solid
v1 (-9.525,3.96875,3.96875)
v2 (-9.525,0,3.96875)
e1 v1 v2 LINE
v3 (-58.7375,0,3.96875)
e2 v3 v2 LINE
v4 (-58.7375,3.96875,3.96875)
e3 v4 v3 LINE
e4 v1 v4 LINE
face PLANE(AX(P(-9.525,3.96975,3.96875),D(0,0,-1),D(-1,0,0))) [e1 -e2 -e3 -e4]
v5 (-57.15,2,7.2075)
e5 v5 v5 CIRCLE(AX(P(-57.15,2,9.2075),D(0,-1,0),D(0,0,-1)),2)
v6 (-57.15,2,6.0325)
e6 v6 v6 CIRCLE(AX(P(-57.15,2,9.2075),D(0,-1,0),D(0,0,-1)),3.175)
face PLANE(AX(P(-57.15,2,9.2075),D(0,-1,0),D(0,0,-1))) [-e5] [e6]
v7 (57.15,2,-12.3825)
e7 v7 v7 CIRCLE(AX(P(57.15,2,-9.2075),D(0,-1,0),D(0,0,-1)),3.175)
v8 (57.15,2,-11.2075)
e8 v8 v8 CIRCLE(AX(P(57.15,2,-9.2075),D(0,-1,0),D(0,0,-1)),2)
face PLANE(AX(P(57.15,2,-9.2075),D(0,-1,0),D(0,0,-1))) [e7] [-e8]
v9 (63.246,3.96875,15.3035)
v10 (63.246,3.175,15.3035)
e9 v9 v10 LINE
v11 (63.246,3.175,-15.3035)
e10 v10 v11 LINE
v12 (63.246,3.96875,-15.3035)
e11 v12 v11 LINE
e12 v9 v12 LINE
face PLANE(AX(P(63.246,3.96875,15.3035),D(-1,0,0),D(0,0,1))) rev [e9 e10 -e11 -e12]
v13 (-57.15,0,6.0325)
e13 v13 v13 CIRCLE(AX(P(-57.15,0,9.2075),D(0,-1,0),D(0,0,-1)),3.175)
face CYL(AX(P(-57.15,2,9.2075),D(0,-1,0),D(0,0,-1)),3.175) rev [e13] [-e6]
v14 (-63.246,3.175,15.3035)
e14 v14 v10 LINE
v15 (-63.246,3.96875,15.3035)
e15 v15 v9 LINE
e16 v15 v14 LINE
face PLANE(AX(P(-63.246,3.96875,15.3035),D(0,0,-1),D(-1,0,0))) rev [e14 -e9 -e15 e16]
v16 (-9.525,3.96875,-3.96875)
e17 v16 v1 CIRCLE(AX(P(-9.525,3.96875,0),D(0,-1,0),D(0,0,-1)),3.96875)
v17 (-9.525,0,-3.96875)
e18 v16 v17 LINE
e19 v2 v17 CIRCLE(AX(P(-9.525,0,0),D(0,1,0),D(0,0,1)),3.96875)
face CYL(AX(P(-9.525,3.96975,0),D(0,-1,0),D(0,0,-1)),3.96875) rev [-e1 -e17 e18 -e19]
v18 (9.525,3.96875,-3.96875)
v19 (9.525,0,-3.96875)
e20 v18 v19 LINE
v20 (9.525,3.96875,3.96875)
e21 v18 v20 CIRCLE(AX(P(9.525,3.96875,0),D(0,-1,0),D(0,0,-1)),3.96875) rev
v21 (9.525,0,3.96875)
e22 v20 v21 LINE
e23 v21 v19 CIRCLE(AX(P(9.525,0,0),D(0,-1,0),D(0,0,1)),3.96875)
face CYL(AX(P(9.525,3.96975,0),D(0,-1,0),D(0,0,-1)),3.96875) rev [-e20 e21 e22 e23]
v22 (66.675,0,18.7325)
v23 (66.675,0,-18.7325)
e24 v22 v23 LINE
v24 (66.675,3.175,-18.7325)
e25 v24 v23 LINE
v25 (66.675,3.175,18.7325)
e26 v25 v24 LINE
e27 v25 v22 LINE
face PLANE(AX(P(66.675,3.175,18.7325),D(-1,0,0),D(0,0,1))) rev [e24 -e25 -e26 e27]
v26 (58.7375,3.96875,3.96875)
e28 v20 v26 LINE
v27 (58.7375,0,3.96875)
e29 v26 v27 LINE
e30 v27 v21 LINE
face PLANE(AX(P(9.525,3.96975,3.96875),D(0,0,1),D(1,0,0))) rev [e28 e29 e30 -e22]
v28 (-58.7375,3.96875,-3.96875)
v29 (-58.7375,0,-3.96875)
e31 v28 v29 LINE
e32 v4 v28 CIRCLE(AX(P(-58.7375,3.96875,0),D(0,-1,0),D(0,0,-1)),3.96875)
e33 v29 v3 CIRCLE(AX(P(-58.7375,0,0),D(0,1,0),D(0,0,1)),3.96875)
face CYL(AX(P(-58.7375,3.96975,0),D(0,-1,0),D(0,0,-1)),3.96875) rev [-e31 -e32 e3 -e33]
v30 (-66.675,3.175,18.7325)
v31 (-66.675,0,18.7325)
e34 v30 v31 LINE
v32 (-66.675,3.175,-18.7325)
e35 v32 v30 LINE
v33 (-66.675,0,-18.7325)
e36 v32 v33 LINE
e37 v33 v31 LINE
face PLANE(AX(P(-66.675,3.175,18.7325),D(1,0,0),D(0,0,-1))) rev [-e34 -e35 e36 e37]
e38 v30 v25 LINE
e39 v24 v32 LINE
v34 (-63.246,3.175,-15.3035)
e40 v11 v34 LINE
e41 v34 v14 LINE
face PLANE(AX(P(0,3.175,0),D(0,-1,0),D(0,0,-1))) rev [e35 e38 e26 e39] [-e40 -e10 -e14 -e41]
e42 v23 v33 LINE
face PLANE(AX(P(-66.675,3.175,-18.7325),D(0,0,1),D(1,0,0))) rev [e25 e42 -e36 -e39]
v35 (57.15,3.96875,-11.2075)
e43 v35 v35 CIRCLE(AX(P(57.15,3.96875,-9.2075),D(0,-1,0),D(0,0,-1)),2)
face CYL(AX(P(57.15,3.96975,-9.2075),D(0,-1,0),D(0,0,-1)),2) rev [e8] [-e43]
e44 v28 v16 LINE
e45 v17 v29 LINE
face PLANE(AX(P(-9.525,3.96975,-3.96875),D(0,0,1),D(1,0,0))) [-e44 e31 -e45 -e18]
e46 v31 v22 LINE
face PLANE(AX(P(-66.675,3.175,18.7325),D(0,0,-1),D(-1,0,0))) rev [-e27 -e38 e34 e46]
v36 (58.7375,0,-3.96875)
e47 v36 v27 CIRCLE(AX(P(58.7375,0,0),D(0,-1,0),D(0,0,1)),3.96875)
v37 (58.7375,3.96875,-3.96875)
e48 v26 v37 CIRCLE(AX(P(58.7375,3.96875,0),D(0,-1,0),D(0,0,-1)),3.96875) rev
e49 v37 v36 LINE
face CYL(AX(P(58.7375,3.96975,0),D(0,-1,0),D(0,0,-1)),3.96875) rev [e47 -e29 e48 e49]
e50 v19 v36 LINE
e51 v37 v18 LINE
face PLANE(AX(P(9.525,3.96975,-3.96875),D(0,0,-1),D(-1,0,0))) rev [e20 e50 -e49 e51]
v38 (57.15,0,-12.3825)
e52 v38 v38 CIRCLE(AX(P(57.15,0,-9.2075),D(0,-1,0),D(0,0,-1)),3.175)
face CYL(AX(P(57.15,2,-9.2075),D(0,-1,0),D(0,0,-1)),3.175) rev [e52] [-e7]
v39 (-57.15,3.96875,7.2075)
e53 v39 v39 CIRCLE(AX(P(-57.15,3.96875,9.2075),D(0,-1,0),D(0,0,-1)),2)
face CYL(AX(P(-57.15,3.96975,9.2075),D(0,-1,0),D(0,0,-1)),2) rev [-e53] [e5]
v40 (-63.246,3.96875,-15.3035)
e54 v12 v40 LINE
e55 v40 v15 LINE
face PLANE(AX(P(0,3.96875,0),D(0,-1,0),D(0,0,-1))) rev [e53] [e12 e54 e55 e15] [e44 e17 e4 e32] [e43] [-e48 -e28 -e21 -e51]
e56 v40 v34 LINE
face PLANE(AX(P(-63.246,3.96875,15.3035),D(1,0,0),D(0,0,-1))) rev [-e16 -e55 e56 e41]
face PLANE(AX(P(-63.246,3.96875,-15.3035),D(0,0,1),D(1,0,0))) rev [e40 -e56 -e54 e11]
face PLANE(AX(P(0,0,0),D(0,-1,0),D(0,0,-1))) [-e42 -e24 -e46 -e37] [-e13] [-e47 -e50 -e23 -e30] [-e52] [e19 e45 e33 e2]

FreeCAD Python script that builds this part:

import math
import FreeCAD as App
import Part
import Sketcher
from FreeCAD import Vector
Q = App.Units.Quantity

doc = App.newDocument("Part")
body = doc.addObject("PartDesign::Body", "Body")

# Sketch on XZ plane
sketch1 = body.newObject("Sketcher::SketchObject", "Sketch")
sketch1.AttachmentSupport = (doc.getObject("XZ_Plane"), [""])
sketch1.MapMode = "FlatFace"
sketch1.addGeometry([
    Part.LineSegment(Vector(-67, -19, 0), Vector(-67, 19, 0)),
    Part.LineSegment(Vector(-67, 19, 0), Vector(67, 19, 0)),
    Part.LineSegment(Vector(67, 19, 0), Vector(67, -19, 0)),
    Part.LineSegment(Vector(67, -19, 0), Vector(-67, -19, 0)),
], False)
sketch1.addConstraint([
    Sketcher.Constraint("Coincident", 0, 2, 1, 1),
    Sketcher.Constraint("Coincident", 1, 2, 2, 1),
    Sketcher.Constraint("Coincident", 2, 2, 3, 1),
    Sketcher.Constraint("Coincident", 3, 2, 0, 1),
    Sketcher.Constraint("Vertical", 0),
    Sketcher.Constraint("Horizontal", 1),
    Sketcher.Constraint("Vertical", 2),
    Sketcher.Constraint("Horizontal", 3),
    Sketcher.Constraint("Symmetric", 0, 2, 2, 2, -1, 1),
    Sketcher.Constraint("DistanceX", 1, 1, 1, 2, Q("5.25 in")),
    Sketcher.Constraint("DistanceY", 0, 1, 0, 2, Q("1.475 in")),
])
pad1 = body.newObject("PartDesign::Pad", "Pad")
pad1.Profile = sketch1
pad1.Length = Q("0.125 in")
pad1.Reversed = True

# Sketch on XZ plane
sketch2 = body.newObject("Sketcher::SketchObject", "Sketch001")
sketch2.AttachmentSupport = (doc.getObject("XZ_Plane"), [""])
sketch2.MapMode = "FlatFace"
sketch2.AttachmentOffset = App.Placement(Vector(0, 0, -0.125 * 25.4), App.Rotation())
sketch2.addGeometry([
    Part.LineSegment(Vector(-63, -15, 0), Vector(-63, 15, 0)),
    Part.LineSegment(Vector(-63, 15, 0), Vector(63, 15, 0)),
    Part.LineSegment(Vector(63, 15, 0), Vector(63, -15, 0)),
    Part.LineSegment(Vector(63, -15, 0), Vector(-63, -15, 0)),
], False)
sketch2.addConstraint([
    Sketcher.Constraint("Coincident", 0, 2, 1, 1),
    Sketcher.Constraint("Coincident", 1, 2, 2, 1),
    Sketcher.Constraint("Coincident", 2, 2, 3, 1),
    Sketcher.Constraint("Coincident", 3, 2, 0, 1),
    Sketcher.Constraint("Vertical", 0),
    Sketcher.Constraint("Horizontal", 1),
    Sketcher.Constraint("Vertical", 2),
    Sketcher.Constraint("Horizontal", 3),
    Sketcher.Constraint("Symmetric", 0, 2, 2, 2, -1, 1),
    Sketcher.Constraint("DistanceX", 1, 1, 1, 2, Q("4.98 in")),
    Sketcher.Constraint("DistanceY", 0, 1, 0, 2, Q("1.205 in")),
])
pad2 = body.newObject("PartDesign::Pad", "Pad001")
pad2.Profile = sketch2
pad2.Length = Q("0.03125 in")
pad2.Reversed = True

# Sketch on XZ plane
sketch3 = body.newObject("Sketcher::SketchObject", "Sketch002")
sketch3.AttachmentSupport = (doc.getObject("XZ_Plane"), [""])
sketch3.MapMode = "FlatFace"
sketch3.addGeometry([
    Part.LineSegment(Vector(-58.7, 4, 0), Vector(-9.5, 4, 0)),
    Part.ArcOfCircle(Part.Circle(Vector(-9.5, 0, 0), Vector(0, 0, 1), 4), math.radians(-90), math.radians(90)),
    Part.LineSegment(Vector(-9.5, -4, 0), Vector(-58.7, -4, 0)),
    Part.ArcOfCircle(Part.Circle(Vector(-58.7, 0, 0), Vector(0, 0, 1), 4), math.radians(90), math.radians(270)),
], False)
sketch3.addConstraint([
    Sketcher.Constraint("Tangent", 0, 2, 1, 2),
    Sketcher.Constraint("Tangent", 1, 1, 2, 1),
    Sketcher.Constraint("Tangent", 2, 2, 3, 2),
    Sketcher.Constraint("Tangent", 3, 1, 0, 1),
    Sketcher.Constraint("Horizontal", 0),
    Sketcher.Constraint("Horizontal", 2),
    Sketcher.Constraint("PointOnObject", 1, 3, -1),
    Sketcher.Constraint("Radius", 1, Q("0.15625 in")),
    Sketcher.Constraint("DistanceX", 0, 1, 0, 2, Q("1.9375 in")),
    Sketcher.Constraint("DistanceX", 1, 3, -1, 1, Q("0.375 in")),
])
pocket1 = body.newObject("PartDesign::Pocket", "Pocket")
pocket1.Profile = sketch3
pocket1.Length = Q("0.15625 in")
doc.recompute()

mirrored = body.newObject("PartDesign::Mirrored", "Mirrored")
mirrored.Originals = [pocket1]
mirrored.MirrorPlane = (doc.getObject("YZ_Plane"), [""])
body.Tip = mirrored

# Sketch on XZ plane
sketch4 = body.newObject("Sketcher::SketchObject", "Sketch003")
sketch4.AttachmentSupport = (doc.getObject("XZ_Plane"), [""])
sketch4.MapMode = "FlatFace"
sketch4.addGeometry(Part.Circle(Vector(-57.1, 9.2, 0), Vector(0, 0, 1), 2), False)
sketch4.addConstraint([
    Sketcher.Constraint("Diameter", 0, Q("4 mm")),
    Sketcher.Constraint("DistanceX", 0, 3, -1, 1, Q("2.25 in")),
    Sketcher.Constraint("DistanceY", -1, 1, 0, 3, Q("0.3625 in")),
])
pocket2 = body.newObject("PartDesign::Pocket", "Pocket001")
pocket2.Profile = sketch4
pocket2.Type = "UpToFirst"

# Sketch on XZ plane
sketch5 = body.newObject("Sketcher::SketchObject", "Sketch004")
sketch5.AttachmentSupport = (doc.getObject("XZ_Plane"), [""])
sketch5.MapMode = "FlatFace"
sketch5.addGeometry(Part.Circle(Vector(57.1, -9.2, 0), Vector(0, 0, 1), 2), False)
sketch5.addConstraint([
    Sketcher.Constraint("Diameter", 0, Q("4 mm")),
    Sketcher.Constraint("DistanceX", -1, 1, 0, 3, Q("2.25 in")),
    Sketcher.Constraint("DistanceY", 0, 3, -1, 1, Q("0.3625 in")),
])
pocket3 = body.newObject("PartDesign::Pocket", "Pocket002")
pocket3.Profile = sketch5
pocket3.Type = "UpToFirst"

# Sketch on XZ plane
sketch6 = body.newObject("Sketcher::SketchObject", "Sketch005")
sketch6.AttachmentSupport = (doc.getObject("XZ_Plane"), [""])
sketch6.MapMode = "FlatFace"
sketch6.addGeometry([
    Part.Circle(Vector(-57.1, 9.2, 0), Vector(0, 0, 1), 3.2),
    Part.Circle(Vector(57.1, -9.2, 0), Vector(0, 0, 1), 3.2),
], False)
sketch6.addConstraint([
    Sketcher.Constraint("Equal", 0, 1),
    Sketcher.Constraint("Symmetric", 0, 3, 1, 3, -1, 1),
    Sketcher.Constraint("Diameter", 0, Q("0.25 in")),
    Sketcher.Constraint("DistanceX", 0, 3, 1, 3, Q("4.5 in")),
    Sketcher.Constraint("DistanceY", 1, 3, 0, 3, Q("0.725 in")),
])
pocket4 = body.newObject("PartDesign::Pocket", "Pocket003")
pocket4.Profile = sketch6
pocket4.Length = 2

doc.recompute()
